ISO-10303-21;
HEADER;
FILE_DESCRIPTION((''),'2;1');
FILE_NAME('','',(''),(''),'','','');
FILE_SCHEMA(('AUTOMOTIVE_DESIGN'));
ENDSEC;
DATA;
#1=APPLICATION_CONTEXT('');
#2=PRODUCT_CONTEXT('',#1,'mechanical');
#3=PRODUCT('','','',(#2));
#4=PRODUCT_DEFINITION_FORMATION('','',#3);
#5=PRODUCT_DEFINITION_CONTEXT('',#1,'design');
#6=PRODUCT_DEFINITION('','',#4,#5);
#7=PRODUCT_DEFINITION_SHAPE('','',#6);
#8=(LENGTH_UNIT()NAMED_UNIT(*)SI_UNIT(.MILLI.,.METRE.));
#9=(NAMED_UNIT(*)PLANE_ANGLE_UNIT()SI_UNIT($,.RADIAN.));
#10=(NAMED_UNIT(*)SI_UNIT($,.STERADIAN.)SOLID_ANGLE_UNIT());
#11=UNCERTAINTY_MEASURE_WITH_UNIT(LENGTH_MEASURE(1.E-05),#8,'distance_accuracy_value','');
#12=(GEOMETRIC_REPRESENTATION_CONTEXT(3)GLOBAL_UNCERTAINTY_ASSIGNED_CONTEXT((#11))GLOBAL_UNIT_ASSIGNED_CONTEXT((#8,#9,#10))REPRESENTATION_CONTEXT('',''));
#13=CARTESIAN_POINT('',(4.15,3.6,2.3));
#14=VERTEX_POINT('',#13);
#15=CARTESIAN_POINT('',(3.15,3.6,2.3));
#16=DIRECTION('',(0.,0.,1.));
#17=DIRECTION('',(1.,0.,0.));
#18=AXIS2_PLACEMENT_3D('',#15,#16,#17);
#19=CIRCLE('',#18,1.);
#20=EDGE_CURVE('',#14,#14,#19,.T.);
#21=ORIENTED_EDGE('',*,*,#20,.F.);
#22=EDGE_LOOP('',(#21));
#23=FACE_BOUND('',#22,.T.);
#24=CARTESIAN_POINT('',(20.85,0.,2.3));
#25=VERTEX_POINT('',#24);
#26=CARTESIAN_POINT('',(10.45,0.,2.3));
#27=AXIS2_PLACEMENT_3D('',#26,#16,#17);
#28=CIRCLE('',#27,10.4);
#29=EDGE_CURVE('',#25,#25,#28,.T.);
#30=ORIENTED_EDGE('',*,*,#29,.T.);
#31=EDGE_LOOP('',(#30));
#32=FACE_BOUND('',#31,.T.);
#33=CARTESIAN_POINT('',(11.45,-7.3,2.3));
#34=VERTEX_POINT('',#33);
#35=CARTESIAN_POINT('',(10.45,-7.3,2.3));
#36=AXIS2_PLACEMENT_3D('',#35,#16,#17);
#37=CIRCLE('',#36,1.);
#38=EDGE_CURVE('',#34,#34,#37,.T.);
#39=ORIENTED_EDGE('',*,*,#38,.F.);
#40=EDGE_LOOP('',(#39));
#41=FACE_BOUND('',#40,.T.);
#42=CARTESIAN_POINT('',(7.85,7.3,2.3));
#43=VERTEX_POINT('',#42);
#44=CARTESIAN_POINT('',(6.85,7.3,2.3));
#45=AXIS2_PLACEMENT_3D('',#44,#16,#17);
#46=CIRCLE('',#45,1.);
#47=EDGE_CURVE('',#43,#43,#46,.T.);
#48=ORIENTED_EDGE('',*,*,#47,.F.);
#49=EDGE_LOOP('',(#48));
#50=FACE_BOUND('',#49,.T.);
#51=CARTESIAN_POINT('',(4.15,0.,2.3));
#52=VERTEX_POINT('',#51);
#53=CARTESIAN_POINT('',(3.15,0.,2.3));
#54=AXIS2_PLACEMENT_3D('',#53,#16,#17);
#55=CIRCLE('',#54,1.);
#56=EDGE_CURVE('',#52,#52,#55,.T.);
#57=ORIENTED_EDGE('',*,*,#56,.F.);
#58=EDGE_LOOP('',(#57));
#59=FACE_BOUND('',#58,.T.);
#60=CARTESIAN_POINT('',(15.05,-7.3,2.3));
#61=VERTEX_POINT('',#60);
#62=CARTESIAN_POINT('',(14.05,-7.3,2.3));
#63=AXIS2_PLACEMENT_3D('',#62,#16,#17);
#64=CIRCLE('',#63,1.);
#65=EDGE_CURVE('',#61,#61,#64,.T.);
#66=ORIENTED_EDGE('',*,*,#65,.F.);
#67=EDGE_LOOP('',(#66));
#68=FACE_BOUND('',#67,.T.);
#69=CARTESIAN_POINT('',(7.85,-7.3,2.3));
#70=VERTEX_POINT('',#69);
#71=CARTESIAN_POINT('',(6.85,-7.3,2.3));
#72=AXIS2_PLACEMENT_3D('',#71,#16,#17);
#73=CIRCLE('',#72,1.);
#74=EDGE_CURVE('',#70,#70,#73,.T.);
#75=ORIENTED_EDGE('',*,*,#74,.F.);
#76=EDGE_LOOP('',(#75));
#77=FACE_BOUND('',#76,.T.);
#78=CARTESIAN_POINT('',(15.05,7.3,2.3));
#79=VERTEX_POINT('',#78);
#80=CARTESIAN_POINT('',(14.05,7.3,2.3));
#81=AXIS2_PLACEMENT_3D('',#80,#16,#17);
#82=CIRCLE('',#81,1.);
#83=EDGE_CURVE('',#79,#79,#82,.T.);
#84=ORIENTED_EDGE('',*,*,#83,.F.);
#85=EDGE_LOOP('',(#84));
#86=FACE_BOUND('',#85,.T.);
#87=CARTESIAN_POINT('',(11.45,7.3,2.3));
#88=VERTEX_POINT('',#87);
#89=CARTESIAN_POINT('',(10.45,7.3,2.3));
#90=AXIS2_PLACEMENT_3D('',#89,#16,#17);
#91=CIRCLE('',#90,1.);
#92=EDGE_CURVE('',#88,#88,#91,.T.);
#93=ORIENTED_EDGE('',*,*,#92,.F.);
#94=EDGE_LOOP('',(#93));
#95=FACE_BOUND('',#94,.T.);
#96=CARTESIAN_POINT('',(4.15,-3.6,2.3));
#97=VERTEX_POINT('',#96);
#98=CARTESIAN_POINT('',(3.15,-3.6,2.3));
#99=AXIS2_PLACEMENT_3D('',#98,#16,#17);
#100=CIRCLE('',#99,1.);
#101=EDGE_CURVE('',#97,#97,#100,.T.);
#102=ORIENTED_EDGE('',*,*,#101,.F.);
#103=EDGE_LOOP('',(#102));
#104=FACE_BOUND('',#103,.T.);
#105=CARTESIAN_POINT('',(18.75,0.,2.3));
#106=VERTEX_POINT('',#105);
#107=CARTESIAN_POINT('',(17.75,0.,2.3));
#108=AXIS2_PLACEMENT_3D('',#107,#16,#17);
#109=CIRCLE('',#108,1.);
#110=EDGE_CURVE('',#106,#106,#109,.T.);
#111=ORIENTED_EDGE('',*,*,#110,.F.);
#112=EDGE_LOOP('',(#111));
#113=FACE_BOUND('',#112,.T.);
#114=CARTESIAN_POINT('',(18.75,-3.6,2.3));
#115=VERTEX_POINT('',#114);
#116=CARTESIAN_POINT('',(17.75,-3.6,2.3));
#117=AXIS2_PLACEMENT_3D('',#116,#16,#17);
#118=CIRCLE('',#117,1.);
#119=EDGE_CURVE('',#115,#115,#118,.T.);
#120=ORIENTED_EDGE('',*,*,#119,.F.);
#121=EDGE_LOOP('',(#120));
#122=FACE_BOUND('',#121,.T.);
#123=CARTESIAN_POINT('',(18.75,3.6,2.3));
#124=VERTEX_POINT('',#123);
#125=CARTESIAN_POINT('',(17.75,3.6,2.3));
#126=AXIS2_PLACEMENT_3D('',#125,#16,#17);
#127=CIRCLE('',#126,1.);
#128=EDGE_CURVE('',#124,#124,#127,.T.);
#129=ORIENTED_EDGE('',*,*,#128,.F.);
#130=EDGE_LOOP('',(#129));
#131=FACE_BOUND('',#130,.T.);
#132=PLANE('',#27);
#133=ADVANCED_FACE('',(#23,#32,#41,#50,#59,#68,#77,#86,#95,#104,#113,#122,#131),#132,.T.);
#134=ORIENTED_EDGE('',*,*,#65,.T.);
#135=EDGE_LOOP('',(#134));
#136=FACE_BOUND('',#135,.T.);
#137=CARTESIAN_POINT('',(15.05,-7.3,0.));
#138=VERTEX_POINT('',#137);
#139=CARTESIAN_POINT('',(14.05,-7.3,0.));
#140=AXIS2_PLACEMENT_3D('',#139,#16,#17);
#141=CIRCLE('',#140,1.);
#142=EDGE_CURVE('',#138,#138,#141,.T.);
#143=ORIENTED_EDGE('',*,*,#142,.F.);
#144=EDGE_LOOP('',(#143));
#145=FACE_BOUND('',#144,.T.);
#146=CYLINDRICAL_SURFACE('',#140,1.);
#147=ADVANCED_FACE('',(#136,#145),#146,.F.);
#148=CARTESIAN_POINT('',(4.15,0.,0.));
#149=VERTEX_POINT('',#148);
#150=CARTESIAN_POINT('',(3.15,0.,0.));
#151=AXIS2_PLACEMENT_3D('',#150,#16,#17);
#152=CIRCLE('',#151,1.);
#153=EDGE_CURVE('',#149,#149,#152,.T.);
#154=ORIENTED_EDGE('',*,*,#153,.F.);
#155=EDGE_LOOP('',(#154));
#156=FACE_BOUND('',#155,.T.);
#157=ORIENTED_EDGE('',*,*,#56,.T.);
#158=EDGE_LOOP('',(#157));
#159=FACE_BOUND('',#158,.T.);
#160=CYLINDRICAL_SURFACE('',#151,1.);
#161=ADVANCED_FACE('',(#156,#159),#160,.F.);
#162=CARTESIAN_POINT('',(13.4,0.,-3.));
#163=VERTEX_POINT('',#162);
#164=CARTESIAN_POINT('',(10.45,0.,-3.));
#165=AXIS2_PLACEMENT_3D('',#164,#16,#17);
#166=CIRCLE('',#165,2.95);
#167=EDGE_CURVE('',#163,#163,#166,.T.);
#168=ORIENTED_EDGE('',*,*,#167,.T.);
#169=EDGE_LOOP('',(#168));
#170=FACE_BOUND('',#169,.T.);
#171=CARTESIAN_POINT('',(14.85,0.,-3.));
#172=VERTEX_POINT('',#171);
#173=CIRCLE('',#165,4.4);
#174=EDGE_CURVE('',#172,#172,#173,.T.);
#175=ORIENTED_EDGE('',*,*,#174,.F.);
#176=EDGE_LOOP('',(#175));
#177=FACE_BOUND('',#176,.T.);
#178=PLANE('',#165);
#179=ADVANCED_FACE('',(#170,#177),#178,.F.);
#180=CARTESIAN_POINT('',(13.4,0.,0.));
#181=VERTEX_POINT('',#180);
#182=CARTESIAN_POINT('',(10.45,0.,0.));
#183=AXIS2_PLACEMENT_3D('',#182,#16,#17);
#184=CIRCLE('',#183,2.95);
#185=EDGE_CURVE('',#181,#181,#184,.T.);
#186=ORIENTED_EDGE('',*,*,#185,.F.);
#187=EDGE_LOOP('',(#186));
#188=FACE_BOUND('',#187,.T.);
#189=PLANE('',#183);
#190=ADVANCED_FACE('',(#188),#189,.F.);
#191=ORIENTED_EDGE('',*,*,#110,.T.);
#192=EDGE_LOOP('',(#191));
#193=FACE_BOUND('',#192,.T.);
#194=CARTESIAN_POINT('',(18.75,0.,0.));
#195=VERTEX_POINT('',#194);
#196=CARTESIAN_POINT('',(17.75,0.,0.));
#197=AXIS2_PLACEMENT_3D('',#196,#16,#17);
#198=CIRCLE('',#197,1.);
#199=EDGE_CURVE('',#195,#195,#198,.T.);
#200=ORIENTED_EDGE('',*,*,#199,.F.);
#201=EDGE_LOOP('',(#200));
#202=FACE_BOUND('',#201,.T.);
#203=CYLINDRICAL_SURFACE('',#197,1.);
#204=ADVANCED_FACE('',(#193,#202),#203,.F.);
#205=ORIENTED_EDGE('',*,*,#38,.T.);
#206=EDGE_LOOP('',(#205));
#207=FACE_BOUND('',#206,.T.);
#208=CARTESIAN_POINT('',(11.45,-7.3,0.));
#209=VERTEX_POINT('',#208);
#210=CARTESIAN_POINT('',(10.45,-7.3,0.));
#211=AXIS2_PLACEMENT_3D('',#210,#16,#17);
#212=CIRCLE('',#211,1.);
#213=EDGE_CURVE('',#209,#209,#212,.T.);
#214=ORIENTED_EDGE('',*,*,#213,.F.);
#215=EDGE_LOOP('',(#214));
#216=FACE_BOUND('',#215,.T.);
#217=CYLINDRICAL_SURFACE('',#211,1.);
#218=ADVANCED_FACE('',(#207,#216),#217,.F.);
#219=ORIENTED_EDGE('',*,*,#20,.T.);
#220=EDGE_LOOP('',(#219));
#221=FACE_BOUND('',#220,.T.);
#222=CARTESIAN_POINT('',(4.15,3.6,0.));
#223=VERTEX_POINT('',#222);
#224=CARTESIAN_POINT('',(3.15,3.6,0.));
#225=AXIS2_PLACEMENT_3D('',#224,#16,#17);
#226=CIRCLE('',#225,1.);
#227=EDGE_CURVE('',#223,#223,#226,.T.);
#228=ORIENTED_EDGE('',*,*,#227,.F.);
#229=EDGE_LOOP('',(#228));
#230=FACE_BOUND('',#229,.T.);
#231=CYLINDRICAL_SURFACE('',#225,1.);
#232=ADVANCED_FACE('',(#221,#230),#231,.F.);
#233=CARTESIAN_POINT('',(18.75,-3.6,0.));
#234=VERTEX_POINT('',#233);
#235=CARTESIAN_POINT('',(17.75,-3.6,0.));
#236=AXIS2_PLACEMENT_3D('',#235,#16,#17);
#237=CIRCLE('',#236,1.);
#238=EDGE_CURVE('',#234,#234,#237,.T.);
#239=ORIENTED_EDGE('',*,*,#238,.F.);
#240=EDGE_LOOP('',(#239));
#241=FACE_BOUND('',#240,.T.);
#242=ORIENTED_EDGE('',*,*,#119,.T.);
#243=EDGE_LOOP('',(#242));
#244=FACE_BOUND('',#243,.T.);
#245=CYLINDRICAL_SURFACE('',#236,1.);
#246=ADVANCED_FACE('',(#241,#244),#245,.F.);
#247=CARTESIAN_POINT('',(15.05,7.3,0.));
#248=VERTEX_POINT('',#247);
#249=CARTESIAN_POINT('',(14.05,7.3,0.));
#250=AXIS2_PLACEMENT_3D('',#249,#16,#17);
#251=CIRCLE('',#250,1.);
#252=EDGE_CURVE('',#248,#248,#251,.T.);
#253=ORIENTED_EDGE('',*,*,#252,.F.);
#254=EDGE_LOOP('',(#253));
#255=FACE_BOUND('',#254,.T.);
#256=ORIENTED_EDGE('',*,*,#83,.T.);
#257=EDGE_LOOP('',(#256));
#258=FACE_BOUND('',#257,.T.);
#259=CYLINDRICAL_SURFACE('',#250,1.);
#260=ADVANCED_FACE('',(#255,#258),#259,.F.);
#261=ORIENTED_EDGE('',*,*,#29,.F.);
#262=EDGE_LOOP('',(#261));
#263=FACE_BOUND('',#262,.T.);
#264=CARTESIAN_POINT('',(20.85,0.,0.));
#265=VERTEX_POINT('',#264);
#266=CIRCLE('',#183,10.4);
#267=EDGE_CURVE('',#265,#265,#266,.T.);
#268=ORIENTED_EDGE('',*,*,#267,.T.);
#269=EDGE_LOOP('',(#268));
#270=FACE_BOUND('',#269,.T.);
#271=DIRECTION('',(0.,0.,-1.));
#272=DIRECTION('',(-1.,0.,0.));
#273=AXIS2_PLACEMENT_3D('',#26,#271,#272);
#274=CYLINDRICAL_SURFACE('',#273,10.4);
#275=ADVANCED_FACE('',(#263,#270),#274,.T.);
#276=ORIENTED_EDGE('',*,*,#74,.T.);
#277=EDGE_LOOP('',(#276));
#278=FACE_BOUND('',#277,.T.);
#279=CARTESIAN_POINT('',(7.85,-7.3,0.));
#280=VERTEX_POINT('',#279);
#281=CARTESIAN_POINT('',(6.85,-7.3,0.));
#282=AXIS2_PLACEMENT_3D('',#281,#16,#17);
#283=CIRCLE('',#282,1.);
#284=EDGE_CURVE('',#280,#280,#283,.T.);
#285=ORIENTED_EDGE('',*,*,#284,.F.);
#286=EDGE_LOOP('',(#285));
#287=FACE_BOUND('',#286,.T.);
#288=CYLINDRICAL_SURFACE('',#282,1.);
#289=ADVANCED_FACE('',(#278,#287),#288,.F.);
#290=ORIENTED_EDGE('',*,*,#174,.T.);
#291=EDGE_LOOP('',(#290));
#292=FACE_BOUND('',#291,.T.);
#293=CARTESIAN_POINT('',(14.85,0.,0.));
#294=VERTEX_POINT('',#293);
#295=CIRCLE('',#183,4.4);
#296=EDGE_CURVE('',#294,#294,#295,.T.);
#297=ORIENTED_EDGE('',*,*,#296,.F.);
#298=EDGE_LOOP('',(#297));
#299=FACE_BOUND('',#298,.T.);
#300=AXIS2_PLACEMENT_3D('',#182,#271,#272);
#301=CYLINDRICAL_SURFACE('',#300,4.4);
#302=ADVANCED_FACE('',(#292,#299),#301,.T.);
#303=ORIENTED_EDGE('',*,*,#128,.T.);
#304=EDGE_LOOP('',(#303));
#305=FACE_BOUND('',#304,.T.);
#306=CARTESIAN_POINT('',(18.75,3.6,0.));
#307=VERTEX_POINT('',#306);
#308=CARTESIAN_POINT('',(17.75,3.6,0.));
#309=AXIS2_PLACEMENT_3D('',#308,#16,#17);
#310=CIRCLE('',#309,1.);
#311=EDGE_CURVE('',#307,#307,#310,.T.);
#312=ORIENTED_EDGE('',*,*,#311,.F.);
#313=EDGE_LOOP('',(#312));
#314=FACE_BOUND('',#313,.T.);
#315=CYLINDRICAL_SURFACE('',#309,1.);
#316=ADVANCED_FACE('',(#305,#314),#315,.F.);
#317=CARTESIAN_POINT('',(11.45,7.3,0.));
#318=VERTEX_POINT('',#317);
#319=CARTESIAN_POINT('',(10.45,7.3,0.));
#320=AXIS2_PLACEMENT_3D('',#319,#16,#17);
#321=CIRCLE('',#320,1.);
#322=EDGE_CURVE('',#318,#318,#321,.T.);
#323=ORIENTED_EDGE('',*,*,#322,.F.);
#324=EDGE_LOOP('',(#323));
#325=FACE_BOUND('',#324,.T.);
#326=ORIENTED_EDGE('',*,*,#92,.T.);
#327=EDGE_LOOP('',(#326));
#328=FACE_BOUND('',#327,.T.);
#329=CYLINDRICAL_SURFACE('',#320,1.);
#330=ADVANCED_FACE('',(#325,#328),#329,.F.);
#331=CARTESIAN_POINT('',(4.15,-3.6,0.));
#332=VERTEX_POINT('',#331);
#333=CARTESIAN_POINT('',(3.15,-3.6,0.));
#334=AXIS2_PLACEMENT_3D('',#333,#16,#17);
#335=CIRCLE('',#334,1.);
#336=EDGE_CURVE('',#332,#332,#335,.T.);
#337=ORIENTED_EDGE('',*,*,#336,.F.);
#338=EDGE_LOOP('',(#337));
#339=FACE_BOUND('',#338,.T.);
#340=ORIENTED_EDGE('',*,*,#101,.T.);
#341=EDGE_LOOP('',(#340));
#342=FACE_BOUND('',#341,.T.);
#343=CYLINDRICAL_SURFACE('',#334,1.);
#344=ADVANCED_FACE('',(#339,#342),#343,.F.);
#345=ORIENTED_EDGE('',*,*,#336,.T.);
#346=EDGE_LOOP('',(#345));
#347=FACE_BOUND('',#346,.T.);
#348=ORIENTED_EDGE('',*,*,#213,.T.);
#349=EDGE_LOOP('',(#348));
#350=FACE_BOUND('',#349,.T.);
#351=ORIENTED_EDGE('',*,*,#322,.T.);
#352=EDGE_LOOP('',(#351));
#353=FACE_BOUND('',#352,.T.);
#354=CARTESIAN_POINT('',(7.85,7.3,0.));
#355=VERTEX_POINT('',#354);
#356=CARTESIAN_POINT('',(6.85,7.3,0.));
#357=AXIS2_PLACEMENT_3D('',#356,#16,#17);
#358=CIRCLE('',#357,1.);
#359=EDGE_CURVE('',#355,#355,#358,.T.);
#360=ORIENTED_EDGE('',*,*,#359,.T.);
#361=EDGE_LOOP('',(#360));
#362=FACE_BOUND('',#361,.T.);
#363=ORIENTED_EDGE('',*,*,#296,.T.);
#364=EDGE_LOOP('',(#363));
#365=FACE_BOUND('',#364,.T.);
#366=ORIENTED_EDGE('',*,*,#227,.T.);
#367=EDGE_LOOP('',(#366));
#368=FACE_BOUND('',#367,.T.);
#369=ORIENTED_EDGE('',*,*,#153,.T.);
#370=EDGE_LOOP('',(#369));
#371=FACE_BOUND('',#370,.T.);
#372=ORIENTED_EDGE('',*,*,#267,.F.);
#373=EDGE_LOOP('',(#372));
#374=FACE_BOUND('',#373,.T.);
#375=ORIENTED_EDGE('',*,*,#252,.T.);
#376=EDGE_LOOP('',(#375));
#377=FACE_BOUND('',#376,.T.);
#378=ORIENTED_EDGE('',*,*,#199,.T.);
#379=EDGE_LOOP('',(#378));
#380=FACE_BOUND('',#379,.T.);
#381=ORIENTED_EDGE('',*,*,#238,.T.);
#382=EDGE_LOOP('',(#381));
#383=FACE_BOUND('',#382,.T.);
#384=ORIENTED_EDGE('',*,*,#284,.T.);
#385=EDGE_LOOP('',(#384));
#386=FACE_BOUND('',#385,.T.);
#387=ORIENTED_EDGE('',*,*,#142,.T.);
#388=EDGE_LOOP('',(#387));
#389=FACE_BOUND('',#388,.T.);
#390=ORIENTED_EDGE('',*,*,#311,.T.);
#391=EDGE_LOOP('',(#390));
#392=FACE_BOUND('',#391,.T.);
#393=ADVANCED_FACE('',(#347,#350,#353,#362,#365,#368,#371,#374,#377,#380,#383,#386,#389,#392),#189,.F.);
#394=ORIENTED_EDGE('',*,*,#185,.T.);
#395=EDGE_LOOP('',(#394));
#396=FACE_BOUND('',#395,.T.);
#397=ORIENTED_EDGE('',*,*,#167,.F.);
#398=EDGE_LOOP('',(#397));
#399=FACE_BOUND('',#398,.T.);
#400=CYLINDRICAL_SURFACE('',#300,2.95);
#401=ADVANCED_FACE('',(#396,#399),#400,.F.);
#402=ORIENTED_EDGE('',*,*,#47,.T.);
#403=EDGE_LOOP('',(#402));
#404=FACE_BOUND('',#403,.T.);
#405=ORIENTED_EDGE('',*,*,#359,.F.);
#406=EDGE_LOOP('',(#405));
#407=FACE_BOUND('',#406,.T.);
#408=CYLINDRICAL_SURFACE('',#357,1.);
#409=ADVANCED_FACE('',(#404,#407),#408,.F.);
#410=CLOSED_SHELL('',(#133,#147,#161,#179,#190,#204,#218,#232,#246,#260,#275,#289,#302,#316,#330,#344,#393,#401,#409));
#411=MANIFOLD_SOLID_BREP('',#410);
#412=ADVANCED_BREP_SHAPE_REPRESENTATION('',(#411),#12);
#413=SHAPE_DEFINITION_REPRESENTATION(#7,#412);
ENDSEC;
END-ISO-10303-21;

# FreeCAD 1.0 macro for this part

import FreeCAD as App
import Part
import Sketcher

doc = App.newDocument("Part")
params = doc.addObject("Spreadsheet::Sheet", "Params")
for row, (alias, value) in enumerate([
    ("sketch1_diameter", "8.8 mm"),
    ("sketch1_diameter2", "5.9 mm"),
    ("pad1_length", "3 mm"),
    ("sketch2_diameter", "20.8 mm"),
    ("pad2_length", "2.3 mm"),
    ("sketch3_diameter", "2 mm"),
    ("pocket1_length", "2.3 mm"),
], start=1):
    params.set(f"A{row}", alias)
    params.set(f"B{row}", "=" + value)
    params.setAlias(f"B{row}", alias)

body = doc.addObject("PartDesign::Body", "Body")

# Sketch on XY plane
sketch1 = doc.addObject("Sketcher::SketchObject", "Sketch")
body.addObject(sketch1)
sketch1.AttachmentSupport = (doc.XY_Plane, [""])
sketch1.MapMode = "FlatFace"
sketch1.AttachmentOffset = App.Placement(App.Vector(0, 0, -3), App.Rotation())
sketch1.addGeometry([
    Part.Circle(App.Vector(10.45, 0, 0), App.Vector(0, 0, 1), 4.4),
    Part.Circle(App.Vector(10.45, 0, 0), App.Vector(0, 0, 1), 2.95),
], False)
sketch1.addConstraint([
    Sketcher.Constraint("Coincident", 1, 3, 0, 3),
    Sketcher.Constraint("PointOnObject", 0, 3, -1),
    Sketcher.Constraint("Diameter", 0, 8.8),
    Sketcher.Constraint("Diameter", 1, 5.9),
    Sketcher.Constraint("DistanceX", -1, 1, 0, 3, 10.45),
])
sketch1.setExpression("Constraints[2]", "Params.sketch1_diameter")
sketch1.setExpression("Constraints[3]", "Params.sketch1_diameter2")
pad1 = doc.addObject("PartDesign::Pad", "Pad")
body.addObject(pad1)
pad1.Profile = sketch1
pad1.setExpression("Length", "Params.pad1_length")

# Sketch on XY plane
sketch2 = doc.addObject("Sketcher::SketchObject", "Sketch001")
body.addObject(sketch2)
sketch2.AttachmentSupport = (doc.XY_Plane, [""])
sketch2.MapMode = "FlatFace"
sketch2.addGeometry(Part.Circle(App.Vector(10.45, 0, 0), App.Vector(0, 0, 1), 10.4), False)
sketch2.addConstraint([
    Sketcher.Constraint("PointOnObject", 0, 3, -1),
    Sketcher.Constraint("Diameter", 0, 20.8),
    Sketcher.Constraint("DistanceX", -1, 1, 0, 3, 10.45),
])
sketch2.setExpression("Constraints[1]", "Params.sketch2_diameter")
pad2 = doc.addObject("PartDesign::Pad", "Pad001")
body.addObject(pad2)
pad2.Profile = sketch2
pad2.setExpression("Length", "Params.pad2_length")

# Sketch on XY plane
sketch3 = doc.addObject("Sketcher::SketchObject", "Sketch002")
body.addObject(sketch3)
sketch3.AttachmentSupport = (doc.XY_Plane, [""])
sketch3.MapMode = "FlatFace"
sketch3.AttachmentOffset = App.Placement(App.Vector(0, 0, 2.3), App.Rotation())
sketch3.addGeometry([
    Part.Circle(App.Vector(10.45, 7.3, 0), App.Vector(0, 0, 1), 1),  # 0
    Part.Circle(App.Vector(14.05, 7.3, 0), App.Vector(0, 0, 1), 1),  # 1
    Part.Circle(App.Vector(6.85, 7.3, 0), App.Vector(0, 0, 1), 1),  # 2
    Part.Circle(App.Vector(3.15, 0, 0), App.Vector(0, 0, 1), 1),  # 3
    Part.Circle(App.Vector(3.15, 3.6, 0), App.Vector(0, 0, 1), 1),  # 4
    Part.Circle(App.Vector(3.15, -3.6, 0), App.Vector(0, 0, 1), 1),  # 5
    Part.Circle(App.Vector(10.45, -7.3, 0), App.Vector(0, 0, 1), 1),  # 6
    Part.Circle(App.Vector(6.85, -7.3, 0), App.Vector(0, 0, 1), 1),  # 7
    Part.Circle(App.Vector(14.05, -7.3, 0), App.Vector(0, 0, 1), 1),  # 8
    Part.Circle(App.Vector(17.75, 0, 0), App.Vector(0, 0, 1), 1),  # 9
    Part.Circle(App.Vector(17.75, -3.6, 0), App.Vector(0, 0, 1), 1),  # 10
    Part.Circle(App.Vector(17.75, 3.6, 0), App.Vector(0, 0, 1), 1),  # 11
], False)
sketch3.addConstraint([
    Sketcher.Constraint("Equal", 0, 1),
    Sketcher.Constraint("Equal", 1, 2),
    Sketcher.Constraint("Equal", 2, 3),
    Sketcher.Constraint("Equal", 3, 4),
    Sketcher.Constraint("Equal", 4, 5),
    Sketcher.Constraint("Equal", 5, 6),
    Sketcher.Constraint("Equal", 6, 7),
    Sketcher.Constraint("Equal", 7, 8),
    Sketcher.Constraint("Equal", 8, 9),
    Sketcher.Constraint("Equal", 9, 10),
    Sketcher.Constraint("Equal", 10, 11),
    Sketcher.Constraint("Symmetric", 4, 3, 5, 3, -1),
    Sketcher.Constraint("Symmetric", 0, 3, 6, 3, -1),
    Sketcher.Constraint("Symmetric", 2, 3, 7, 3, -1),
    Sketcher.Constraint("Symmetric", 1, 3, 8, 3, -1),
    Sketcher.Constraint("Symmetric", 10, 3, 11, 3, -1),
    Sketcher.Constraint("PointOnObject", 3, 3, -1),
    Sketcher.Constraint("PointOnObject", 9, 3, -1),
    Sketcher.Constraint("Horizontal", 0, 3, 1, 3),
    Sketcher.Constraint("Horizontal", 1, 3, 2, 3),
    Sketcher.Constraint("Horizontal", 5, 3, 10, 3),
    Sketcher.Constraint("Vertical", 3, 3, 4, 3),
    Sketcher.Constraint("Vertical", 9, 3, 10, 3),
    Sketcher.Constraint("Diameter", 0, 2.0),
    Sketcher.Constraint("DistanceY", -1, 1, 0, 3, 7.3),
    Sketcher.Constraint("DistanceY", -1, 1, 4, 3, 3.6),
    Sketcher.Constraint("DistanceX", 0, 3, 1, 3, 3.6),
    Sketcher.Constraint("DistanceX", 2, 3, 0, 3, 3.6),
    Sketcher.Constraint("DistanceX", 3, 3, 2, 3, 3.7),
    Sketcher.Constraint("DistanceX", 1, 3, 9, 3, 3.7),
    Sketcher.Constraint("DistanceX", -1, 1, 0, 3, 10.45),
])
sketch3.setExpression("Constraints[23]", "Params.sketch3_diameter")
pocket1 = doc.addObject("PartDesign::Pocket", "Pocket")
body.addObject(pocket1)
pocket1.Profile = sketch3
pocket1.setExpression("Length", "Params.pocket1_length")

doc.recompute()
